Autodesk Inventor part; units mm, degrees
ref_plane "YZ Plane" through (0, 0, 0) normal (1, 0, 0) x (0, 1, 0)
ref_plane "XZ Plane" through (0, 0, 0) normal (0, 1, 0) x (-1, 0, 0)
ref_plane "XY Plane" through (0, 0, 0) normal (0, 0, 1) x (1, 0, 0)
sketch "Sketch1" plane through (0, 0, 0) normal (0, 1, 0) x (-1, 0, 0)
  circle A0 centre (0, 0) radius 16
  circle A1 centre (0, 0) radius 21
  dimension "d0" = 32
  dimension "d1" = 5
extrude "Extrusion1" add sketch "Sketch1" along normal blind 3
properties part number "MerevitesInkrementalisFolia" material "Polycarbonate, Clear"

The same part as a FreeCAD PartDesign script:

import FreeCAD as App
import Part
import Sketcher
Q = App.Units.Quantity

doc = App.newDocument("Part")
body = doc.addObject("PartDesign::Body", "Body")

sketch1 = doc.addObject("Sketcher::SketchObject", "Sketch")
body.addObject(sketch1)
sketch1.AttachmentSupport = (doc.XZ_Plane, [""])
sketch1.MapMode = "FlatFace"
sketch1.addGeometry(Part.Circle(App.Vector(0, 0, 0), App.Vector(0, 0, 1), 21), False)
sketch1.addGeometry(Part.Circle(App.Vector(0, 0, 0), App.Vector(0, 0, 1), 16), False)
sketch1.addConstraint(Sketcher.Constraint("Coincident", 0, 3, -1, 1))
sketch1.addConstraint(Sketcher.Constraint("Coincident", 1, 3, -1, 1))
sketch1.addConstraint(Sketcher.Constraint("Diameter", 1, Q("32 mm")))
sketch1.addConstraint(Sketcher.Constraint("Diameter", 0, Q("42 mm")))
pad1 = doc.addObject("PartDesign::Pad", "Pad")
body.addObject(pad1)
pad1.Profile = sketch1
pad1.Length = 3
pad1.Reversed = True

doc.recompute()
